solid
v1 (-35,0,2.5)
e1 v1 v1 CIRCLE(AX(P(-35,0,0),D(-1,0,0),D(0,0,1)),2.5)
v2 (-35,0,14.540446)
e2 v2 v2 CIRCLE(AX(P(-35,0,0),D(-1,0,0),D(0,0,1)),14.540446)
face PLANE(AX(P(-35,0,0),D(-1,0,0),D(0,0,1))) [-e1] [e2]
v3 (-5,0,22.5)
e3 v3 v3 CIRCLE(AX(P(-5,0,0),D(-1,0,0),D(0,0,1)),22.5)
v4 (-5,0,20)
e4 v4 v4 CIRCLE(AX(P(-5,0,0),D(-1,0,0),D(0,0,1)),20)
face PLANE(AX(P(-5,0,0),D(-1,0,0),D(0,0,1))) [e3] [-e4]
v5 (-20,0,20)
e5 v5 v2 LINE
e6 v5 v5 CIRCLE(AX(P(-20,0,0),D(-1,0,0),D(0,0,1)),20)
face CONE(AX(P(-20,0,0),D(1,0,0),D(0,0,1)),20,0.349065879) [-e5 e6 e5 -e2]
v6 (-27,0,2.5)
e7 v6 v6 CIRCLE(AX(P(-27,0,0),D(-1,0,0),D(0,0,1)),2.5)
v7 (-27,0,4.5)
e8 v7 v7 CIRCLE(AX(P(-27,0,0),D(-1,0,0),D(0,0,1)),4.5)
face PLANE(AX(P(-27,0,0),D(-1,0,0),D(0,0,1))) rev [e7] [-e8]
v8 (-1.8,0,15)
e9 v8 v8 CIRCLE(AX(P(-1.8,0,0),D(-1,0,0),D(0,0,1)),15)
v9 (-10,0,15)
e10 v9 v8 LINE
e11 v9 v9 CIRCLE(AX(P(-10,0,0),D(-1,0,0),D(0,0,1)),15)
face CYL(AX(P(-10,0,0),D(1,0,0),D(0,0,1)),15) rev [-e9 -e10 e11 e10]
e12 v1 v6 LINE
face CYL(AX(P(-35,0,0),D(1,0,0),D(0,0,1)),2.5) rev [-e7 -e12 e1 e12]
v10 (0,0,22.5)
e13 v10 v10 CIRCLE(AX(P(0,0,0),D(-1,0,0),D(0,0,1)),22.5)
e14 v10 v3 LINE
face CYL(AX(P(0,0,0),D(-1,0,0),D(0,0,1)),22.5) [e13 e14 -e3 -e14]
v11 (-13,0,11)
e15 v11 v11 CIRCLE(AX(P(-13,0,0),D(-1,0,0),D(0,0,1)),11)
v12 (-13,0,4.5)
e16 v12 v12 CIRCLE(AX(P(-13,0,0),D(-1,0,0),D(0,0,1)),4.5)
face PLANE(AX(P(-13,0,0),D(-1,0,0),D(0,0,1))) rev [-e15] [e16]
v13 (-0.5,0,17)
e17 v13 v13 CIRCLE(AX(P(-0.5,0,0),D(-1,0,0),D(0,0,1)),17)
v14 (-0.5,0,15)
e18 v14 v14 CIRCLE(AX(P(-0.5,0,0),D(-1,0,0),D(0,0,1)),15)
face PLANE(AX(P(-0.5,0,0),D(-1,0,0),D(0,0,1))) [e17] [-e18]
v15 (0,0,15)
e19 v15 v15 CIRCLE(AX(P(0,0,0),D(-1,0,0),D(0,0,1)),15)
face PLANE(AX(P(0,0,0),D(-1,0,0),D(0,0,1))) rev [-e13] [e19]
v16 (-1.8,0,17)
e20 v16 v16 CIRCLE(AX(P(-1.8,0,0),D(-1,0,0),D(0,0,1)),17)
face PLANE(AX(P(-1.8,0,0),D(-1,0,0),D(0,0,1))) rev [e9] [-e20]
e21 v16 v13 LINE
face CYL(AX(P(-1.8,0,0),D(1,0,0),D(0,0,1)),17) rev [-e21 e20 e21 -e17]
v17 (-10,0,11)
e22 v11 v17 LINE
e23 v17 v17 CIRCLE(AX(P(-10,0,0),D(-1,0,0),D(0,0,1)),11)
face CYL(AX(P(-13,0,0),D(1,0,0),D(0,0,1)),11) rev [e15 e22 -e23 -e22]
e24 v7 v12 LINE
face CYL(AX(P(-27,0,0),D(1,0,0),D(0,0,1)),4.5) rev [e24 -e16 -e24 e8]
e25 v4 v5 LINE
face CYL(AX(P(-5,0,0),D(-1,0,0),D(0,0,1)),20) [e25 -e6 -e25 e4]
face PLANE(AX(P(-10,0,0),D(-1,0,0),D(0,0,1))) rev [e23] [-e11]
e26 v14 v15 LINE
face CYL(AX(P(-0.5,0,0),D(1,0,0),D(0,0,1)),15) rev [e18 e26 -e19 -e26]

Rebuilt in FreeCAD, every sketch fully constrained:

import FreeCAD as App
import Part
import Sketcher
from FreeCAD import Vector
Q = App.Units.Quantity

doc = App.newDocument("Part")
body = doc.addObject("PartDesign::Body", "Body")

# Sketch on XZ plane
sketch1 = body.newObject("Sketcher::SketchObject", "Sketch")
sketch1.AttachmentSupport = (doc.getObject("XZ_Plane"), [""])
sketch1.MapMode = "FlatFace"
sketch1.addGeometry([
    Part.LineSegment(Vector(-0.5, 15, 0), Vector(0, 15, 0)),  # 0
    Part.LineSegment(Vector(0, 15, 0), Vector(0, 22.5, 0)),  # 1
    Part.LineSegment(Vector(0, 22.5, 0), Vector(-5, 22.5, 0)),  # 2
    Part.LineSegment(Vector(-5, 22.5, 0), Vector(-5, 20, 0)),  # 3
    Part.LineSegment(Vector(-5, 20, 0), Vector(-20, 20, 0)),  # 4
    Part.LineSegment(Vector(-20, 20, 0), Vector(-35, 14.5, 0)),  # 5
    Part.LineSegment(Vector(-35, 14.5, 0), Vector(-35, 2.5, 0)),  # 6
    Part.LineSegment(Vector(-35, 2.5, 0), Vector(-27, 2.5, 0)),  # 7
    Part.LineSegment(Vector(-27, 2.5, 0), Vector(-27, 4.5, 0)),  # 8
    Part.LineSegment(Vector(-27, 4.5, 0), Vector(-13, 4.5, 0)),  # 9
    Part.LineSegment(Vector(-13, 4.5, 0), Vector(-13, 11, 0)),  # 10
    Part.LineSegment(Vector(-13, 11, 0), Vector(-10, 11, 0)),  # 11
    Part.LineSegment(Vector(-10, 11, 0), Vector(-10, 15, 0)),  # 12
    Part.LineSegment(Vector(-10, 15, 0), Vector(-1.8, 15, 0)),  # 13
    Part.LineSegment(Vector(-1.8, 15, 0), Vector(-1.8, 17, 0)),  # 14
    Part.LineSegment(Vector(-1.8, 17, 0), Vector(-0.5, 17, 0)),  # 15
    Part.LineSegment(Vector(-0.5, 17, 0), Vector(-0.5, 15, 0)),  # 16
], False)
sketch1.addConstraint([
    Sketcher.Constraint("Coincident", 0, 2, 1, 1),
    Sketcher.Constraint("Coincident", 1, 2, 2, 1),
    Sketcher.Constraint("Coincident", 2, 2, 3, 1),
    Sketcher.Constraint("Coincident", 3, 2, 4, 1),
    Sketcher.Constraint("Coincident", 4, 2, 5, 1),
    Sketcher.Constraint("Coincident", 5, 2, 6, 1),
    Sketcher.Constraint("Coincident", 6, 2, 7, 1),
    Sketcher.Constraint("Coincident", 7, 2, 8, 1),
    Sketcher.Constraint("Coincident", 8, 2, 9, 1),
    Sketcher.Constraint("Coincident", 9, 2, 10, 1),
    Sketcher.Constraint("Coincident", 10, 2, 11, 1),
    Sketcher.Constraint("Coincident", 11, 2, 12, 1),
    Sketcher.Constraint("Coincident", 12, 2, 13, 1),
    Sketcher.Constraint("Coincident", 13, 2, 14, 1),
    Sketcher.Constraint("Coincident", 14, 2, 15, 1),
    Sketcher.Constraint("Coincident", 15, 2, 16, 1),
    Sketcher.Constraint("Coincident", 16, 2, 0, 1),
    Sketcher.Constraint("Horizontal", 0),
    Sketcher.Constraint("Vertical", 1),
    Sketcher.Constraint("Horizontal", 2),
    Sketcher.Constraint("Vertical", 3),
    Sketcher.Constraint("Horizontal", 4),
    Sketcher.Constraint("Vertical", 6),
    Sketcher.Constraint("Horizontal", 7),
    Sketcher.Constraint("Vertical", 8),
    Sketcher.Constraint("Horizontal", 9),
    Sketcher.Constraint("Vertical", 10),
    Sketcher.Constraint("Horizontal", 11),
    Sketcher.Constraint("Vertical", 12),
    Sketcher.Constraint("Horizontal", 13),
    Sketcher.Constraint("Vertical", 14),
    Sketcher.Constraint("Horizontal", 15),
    Sketcher.Constraint("Vertical", 16),
    Sketcher.Constraint("PointOnObject", 0, 2, -2),
    Sketcher.Constraint("Horizontal", 0, 2, 12, 2),
    Sketcher.Constraint("Equal", 8, 14),
    Sketcher.Constraint("DistanceX", 2, 2, 2, 1, Q("5 mm")),
    Sketcher.Constraint("DistanceX", 4, 2, 4, 1, Q("15 mm")),
    Sketcher.Constraint("DistanceX", 7, 1, 7, 2, Q("8 mm")),
    Sketcher.Constraint("DistanceX", 9, 1, 9, 2, Q("14 mm")),
    Sketcher.Constraint("DistanceX", 11, 1, 11, 2, Q("3 mm")),
    Sketcher.Constraint("DistanceY", 8, 1, 8, 2, Q("2 mm")),
    Sketcher.Constraint("DistanceY", 12, 1, 12, 2, Q("4 mm")),
    Sketcher.Constraint("Angle", 5, Q("-159.999998 deg")),
    Sketcher.Constraint("DistanceX", 0, 1, 0, 2, Q("0.5 mm")),
    Sketcher.Constraint("DistanceX", 13, 1, 13, 2, Q("8.2 mm")),
    Sketcher.Constraint("DistanceX", 15, 1, 15, 2, Q("1.3 mm")),
    Sketcher.Constraint("DistanceY", 1, 1, 1, 2, Q("7.5 mm")),
    Sketcher.Constraint("DistanceY", 3, 2, 3, 1, Q("2.5 mm")),
    Sketcher.Constraint("DistanceY", 10, 1, 10, 2, Q("6.5 mm")),
    Sketcher.Constraint("DistanceY", -1, 1, 0, 2, Q("15 mm")),
])
revolution = body.newObject("PartDesign::Revolution", "Revolution")
revolution.Profile = sketch1
revolution.ReferenceAxis = (sketch1, ["H_Axis"])
revolution.Angle = 360

doc.recompute()
